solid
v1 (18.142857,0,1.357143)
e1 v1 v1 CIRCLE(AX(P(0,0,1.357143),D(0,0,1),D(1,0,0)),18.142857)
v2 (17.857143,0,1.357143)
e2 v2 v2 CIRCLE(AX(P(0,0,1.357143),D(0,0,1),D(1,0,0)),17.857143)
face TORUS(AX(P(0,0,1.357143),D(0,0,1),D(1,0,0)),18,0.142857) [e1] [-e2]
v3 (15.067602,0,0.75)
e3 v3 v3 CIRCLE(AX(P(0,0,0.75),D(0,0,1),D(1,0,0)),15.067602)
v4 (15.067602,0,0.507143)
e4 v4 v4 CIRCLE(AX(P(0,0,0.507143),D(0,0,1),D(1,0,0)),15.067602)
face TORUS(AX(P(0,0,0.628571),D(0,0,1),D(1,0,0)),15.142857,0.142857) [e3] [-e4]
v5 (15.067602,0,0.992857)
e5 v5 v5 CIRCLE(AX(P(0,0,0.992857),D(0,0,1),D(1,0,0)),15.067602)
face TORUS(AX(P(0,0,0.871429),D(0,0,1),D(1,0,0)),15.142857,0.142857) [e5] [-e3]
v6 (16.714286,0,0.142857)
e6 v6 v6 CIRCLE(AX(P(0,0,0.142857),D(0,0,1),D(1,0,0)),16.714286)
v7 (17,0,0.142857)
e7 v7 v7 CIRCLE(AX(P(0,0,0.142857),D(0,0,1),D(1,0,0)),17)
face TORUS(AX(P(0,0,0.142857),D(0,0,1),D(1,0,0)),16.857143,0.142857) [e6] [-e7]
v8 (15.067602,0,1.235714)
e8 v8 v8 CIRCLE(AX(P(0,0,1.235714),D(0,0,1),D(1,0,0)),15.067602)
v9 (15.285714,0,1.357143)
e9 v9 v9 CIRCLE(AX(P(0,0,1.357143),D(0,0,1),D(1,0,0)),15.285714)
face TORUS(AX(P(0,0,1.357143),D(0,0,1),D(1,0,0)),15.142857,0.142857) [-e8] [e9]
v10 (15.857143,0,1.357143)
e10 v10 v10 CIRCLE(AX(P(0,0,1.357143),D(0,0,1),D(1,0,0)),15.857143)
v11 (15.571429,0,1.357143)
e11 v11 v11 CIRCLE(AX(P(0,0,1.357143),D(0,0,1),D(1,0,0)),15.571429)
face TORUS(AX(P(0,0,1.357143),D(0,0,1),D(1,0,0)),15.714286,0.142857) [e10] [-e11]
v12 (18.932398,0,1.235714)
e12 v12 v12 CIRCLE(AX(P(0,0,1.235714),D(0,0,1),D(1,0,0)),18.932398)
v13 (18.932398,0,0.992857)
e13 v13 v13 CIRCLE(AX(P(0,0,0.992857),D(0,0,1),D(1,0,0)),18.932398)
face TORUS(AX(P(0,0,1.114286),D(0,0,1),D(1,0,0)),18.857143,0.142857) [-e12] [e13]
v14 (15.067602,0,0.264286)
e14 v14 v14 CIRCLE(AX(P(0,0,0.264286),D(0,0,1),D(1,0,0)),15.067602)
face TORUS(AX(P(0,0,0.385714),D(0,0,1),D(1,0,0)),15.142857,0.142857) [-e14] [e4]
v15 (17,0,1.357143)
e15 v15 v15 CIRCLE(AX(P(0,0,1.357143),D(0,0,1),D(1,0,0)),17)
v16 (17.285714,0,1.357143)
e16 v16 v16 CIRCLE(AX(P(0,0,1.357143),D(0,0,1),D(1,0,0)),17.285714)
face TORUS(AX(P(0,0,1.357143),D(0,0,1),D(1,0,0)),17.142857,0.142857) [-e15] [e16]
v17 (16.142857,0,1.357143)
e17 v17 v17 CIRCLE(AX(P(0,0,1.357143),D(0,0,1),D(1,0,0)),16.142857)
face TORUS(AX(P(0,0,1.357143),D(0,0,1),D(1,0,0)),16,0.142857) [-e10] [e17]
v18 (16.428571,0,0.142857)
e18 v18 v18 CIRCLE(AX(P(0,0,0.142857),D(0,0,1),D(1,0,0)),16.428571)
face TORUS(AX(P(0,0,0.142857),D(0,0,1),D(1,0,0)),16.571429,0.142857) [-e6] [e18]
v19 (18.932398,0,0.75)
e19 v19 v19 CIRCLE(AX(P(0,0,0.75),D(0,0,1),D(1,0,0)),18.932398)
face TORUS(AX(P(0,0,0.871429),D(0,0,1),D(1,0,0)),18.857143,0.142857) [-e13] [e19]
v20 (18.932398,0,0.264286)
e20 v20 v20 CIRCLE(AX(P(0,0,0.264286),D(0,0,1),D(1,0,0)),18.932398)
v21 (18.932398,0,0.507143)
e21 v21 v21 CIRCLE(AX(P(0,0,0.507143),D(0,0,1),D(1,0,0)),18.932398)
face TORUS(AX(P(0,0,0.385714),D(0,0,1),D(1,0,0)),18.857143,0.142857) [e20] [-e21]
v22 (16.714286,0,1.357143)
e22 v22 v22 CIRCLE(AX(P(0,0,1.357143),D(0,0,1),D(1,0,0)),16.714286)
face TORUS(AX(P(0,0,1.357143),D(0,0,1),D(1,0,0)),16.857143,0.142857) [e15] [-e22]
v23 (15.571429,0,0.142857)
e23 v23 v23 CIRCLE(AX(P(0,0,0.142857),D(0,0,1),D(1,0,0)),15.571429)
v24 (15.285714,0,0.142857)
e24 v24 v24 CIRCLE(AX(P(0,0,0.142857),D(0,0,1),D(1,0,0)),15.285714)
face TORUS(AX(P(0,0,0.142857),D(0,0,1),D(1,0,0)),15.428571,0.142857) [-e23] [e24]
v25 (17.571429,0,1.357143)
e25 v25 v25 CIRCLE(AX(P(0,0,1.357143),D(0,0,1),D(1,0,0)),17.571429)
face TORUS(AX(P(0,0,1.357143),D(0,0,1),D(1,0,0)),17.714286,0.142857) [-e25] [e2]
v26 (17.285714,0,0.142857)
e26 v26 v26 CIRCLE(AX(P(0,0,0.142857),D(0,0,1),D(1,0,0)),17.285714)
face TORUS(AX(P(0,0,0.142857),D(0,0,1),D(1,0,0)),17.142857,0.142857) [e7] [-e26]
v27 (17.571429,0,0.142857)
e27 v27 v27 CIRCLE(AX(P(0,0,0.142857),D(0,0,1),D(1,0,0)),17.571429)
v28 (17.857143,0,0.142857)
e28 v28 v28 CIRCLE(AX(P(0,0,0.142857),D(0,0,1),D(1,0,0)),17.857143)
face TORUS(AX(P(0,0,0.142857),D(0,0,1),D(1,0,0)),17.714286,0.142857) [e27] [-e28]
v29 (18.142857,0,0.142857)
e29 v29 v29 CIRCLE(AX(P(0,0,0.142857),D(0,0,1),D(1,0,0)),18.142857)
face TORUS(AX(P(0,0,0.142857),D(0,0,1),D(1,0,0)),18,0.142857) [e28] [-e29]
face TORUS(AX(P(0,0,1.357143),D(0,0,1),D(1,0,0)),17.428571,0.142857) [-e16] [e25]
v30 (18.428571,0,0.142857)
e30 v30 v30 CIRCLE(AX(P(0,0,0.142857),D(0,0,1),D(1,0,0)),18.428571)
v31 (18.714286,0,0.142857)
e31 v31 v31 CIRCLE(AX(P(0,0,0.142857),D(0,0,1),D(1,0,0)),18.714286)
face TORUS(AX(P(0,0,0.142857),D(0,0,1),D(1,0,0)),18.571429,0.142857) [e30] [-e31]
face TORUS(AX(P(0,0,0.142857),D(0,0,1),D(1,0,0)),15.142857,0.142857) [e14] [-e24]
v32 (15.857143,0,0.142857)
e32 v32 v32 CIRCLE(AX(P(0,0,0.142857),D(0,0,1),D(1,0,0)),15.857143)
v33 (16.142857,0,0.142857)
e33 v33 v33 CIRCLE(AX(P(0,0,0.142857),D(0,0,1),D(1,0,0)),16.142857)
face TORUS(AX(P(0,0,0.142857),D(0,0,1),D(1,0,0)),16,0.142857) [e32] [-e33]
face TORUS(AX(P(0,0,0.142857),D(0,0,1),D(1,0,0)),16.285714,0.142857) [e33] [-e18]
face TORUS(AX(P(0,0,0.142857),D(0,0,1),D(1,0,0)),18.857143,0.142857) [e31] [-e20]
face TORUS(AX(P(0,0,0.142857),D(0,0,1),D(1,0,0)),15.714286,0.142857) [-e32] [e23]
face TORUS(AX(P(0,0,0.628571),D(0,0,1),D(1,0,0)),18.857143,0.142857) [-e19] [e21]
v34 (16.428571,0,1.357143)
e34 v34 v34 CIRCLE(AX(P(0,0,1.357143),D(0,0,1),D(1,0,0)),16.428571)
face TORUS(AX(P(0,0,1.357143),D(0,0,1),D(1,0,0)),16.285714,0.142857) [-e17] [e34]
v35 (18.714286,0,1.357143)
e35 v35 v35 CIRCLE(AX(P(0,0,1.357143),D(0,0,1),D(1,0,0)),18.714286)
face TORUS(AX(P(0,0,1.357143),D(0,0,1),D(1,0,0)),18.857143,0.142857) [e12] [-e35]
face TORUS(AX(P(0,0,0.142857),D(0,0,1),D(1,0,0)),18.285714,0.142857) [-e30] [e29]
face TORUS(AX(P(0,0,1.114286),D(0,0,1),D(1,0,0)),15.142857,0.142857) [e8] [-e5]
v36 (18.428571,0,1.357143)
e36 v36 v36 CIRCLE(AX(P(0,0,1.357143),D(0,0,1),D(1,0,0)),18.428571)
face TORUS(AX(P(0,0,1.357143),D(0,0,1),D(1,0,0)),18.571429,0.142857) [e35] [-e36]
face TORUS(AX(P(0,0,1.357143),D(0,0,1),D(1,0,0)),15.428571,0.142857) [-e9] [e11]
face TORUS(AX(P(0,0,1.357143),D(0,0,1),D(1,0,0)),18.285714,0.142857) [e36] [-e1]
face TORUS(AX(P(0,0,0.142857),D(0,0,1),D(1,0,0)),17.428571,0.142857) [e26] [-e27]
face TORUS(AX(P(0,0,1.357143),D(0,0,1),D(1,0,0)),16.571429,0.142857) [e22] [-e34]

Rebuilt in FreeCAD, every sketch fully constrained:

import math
import FreeCAD as App
import Part
import Sketcher
Q = App.Units.Quantity

doc = App.newDocument("Part")
params = doc.addObject("Spreadsheet::Sheet", "Params")
for row, (alias, value) in enumerate([
    ("revolution_angle", "360 deg"),
], start=1):
    params.set(f"A{row}", alias)
    params.set(f"B{row}", "=" + value)
    params.setAlias(f"B{row}", alias)

body = doc.addObject("PartDesign::Body", "Body")

sketch1 = body.newObject("Sketcher::SketchObject", "Sketch")
sketch1.AttachmentSupport = (doc.getObject("XZ_Plane"), [""])
sketch1.MapMode = "FlatFace"
sketch1.addGeometry(Part.ArcOfCircle(Part.Circle(App.Vector(-18.86, 1.36, 0), App.Vector(0, 0, 1), 0.14), math.radians(0), math.radians(238)), False)
sketch1.addGeometry(Part.ArcOfCircle(Part.Circle(App.Vector(-18.57, 1.36, 0), App.Vector(0, 0, 1), 0.14), math.radians(0), math.radians(180)), False)
sketch1.addGeometry(Part.ArcOfCircle(Part.Circle(App.Vector(-18.29, 1.36, 0), App.Vector(0, 0, 1), 0.14), math.radians(0), math.radians(180)), False)
sketch1.addGeometry(Part.ArcOfCircle(Part.Circle(App.Vector(-18, 1.36, 0), App.Vector(0, 0, 1), 0.14), math.radians(0), math.radians(180)), False)
sketch1.addGeometry(Part.ArcOfCircle(Part.Circle(App.Vector(-17.71, 1.36, 0), App.Vector(0, 0, 1), 0.14), math.radians(0), math.radians(180)), False)
sketch1.addGeometry(Part.ArcOfCircle(Part.Circle(App.Vector(-17.43, 1.36, 0), App.Vector(0, 0, 1), 0.14), math.radians(0), math.radians(180)), False)
sketch1.addGeometry(Part.ArcOfCircle(Part.Circle(App.Vector(-17.14, 1.36, 0), App.Vector(0, 0, 1), 0.14), math.radians(0), math.radians(180)), False)
sketch1.addGeometry(Part.ArcOfCircle(Part.Circle(App.Vector(-16.86, 1.36, 0), App.Vector(0, 0, 1), 0.14), math.radians(0), math.radians(180)), False)
sketch1.addGeometry(Part.ArcOfCircle(Part.Circle(App.Vector(-16.57, 1.36, 0), App.Vector(0, 0, 1), 0.14), math.radians(0), math.radians(180)), False)
sketch1.addGeometry(Part.ArcOfCircle(Part.Circle(App.Vector(-16.29, 1.36, 0), App.Vector(0, 0, 1), 0.14), math.radians(0), math.radians(180)), False)
sketch1.addGeometry(Part.ArcOfCircle(Part.Circle(App.Vector(-16, 1.36, 0), App.Vector(0, 0, 1), 0.14), math.radians(0), math.radians(180)), False)
sketch1.addGeometry(Part.ArcOfCircle(Part.Circle(App.Vector(-15.71, 1.36, 0), App.Vector(0, 0, 1), 0.14), math.radians(0), math.radians(180)), False)
sketch1.addGeometry(Part.ArcOfCircle(Part.Circle(App.Vector(-15.43, 1.36, 0), App.Vector(0, 0, 1), 0.14), math.radians(0), math.radians(180)), False)
sketch1.addGeometry(Part.ArcOfCircle(Part.Circle(App.Vector(-15.14, 1.36, 0), App.Vector(0, 0, 1), 0.14), math.radians(-58), math.radians(180)), False)
sketch1.addGeometry(Part.ArcOfCircle(Part.Circle(App.Vector(-15.14, 1.11, 0), App.Vector(0, 0, 1), 0.14), math.radians(-58), math.radians(58)), False)
sketch1.addGeometry(Part.ArcOfCircle(Part.Circle(App.Vector(-15.14, 0.87, 0), App.Vector(0, 0, 1), 0.14), math.radians(-58), math.radians(58)), False)
sketch1.addGeometry(Part.ArcOfCircle(Part.Circle(App.Vector(-15.14, 0.63, 0), App.Vector(0, 0, 1), 0.14), math.radians(-58), math.radians(58)), False)
sketch1.addGeometry(Part.ArcOfCircle(Part.Circle(App.Vector(-15.14, 0.39, 0), App.Vector(0, 0, 1), 0.14), math.radians(-58), math.radians(58)), False)
sketch1.addGeometry(Part.ArcOfCircle(Part.Circle(App.Vector(-15.14, 0.14, 0), App.Vector(0, 0, 1), 0.14), math.radians(180), math.radians(418)), False)
sketch1.addGeometry(Part.ArcOfCircle(Part.Circle(App.Vector(-15.43, 0.14, 0), App.Vector(0, 0, 1), 0.14), math.radians(180), math.radians(360)), False)
sketch1.addGeometry(Part.ArcOfCircle(Part.Circle(App.Vector(-15.71, 0.14, 0), App.Vector(0, 0, 1), 0.14), math.radians(180), math.radians(360)), False)
sketch1.addGeometry(Part.ArcOfCircle(Part.Circle(App.Vector(-16, 0.14, 0), App.Vector(0, 0, 1), 0.14), math.radians(180), math.radians(360)), False)
sketch1.addGeometry(Part.ArcOfCircle(Part.Circle(App.Vector(-16.29, 0.14, 0), App.Vector(0, 0, 1), 0.14), math.radians(180), math.radians(360)), False)
sketch1.addGeometry(Part.ArcOfCircle(Part.Circle(App.Vector(-16.57, 0.14, 0), App.Vector(0, 0, 1), 0.14), math.radians(180), math.radians(360)), False)
sketch1.addGeometry(Part.ArcOfCircle(Part.Circle(App.Vector(-16.86, 0.14, 0), App.Vector(0, 0, 1), 0.14), math.radians(180), math.radians(360)), False)
sketch1.addGeometry(Part.ArcOfCircle(Part.Circle(App.Vector(-17.14, 0.14, 0), App.Vector(0, 0, 1), 0.14), math.radians(180), math.radians(360)), False)
sketch1.addGeometry(Part.ArcOfCircle(Part.Circle(App.Vector(-17.43, 0.14, 0), App.Vector(0, 0, 1), 0.14), math.radians(180), math.radians(360)), False)
sketch1.addGeometry(Part.ArcOfCircle(Part.Circle(App.Vector(-17.71, 0.14, 0), App.Vector(0, 0, 1), 0.14), math.radians(180), math.radians(360)), False)
sketch1.addGeometry(Part.ArcOfCircle(Part.Circle(App.Vector(-18, 0.14, 0), App.Vector(0, 0, 1), 0.14), math.radians(180), math.radians(360)), False)
sketch1.addGeometry(Part.ArcOfCircle(Part.Circle(App.Vector(-18.29, 0.14, 0), App.Vector(0, 0, 1), 0.14), math.radians(180), math.radians(360)), False)
sketch1.addGeometry(Part.ArcOfCircle(Part.Circle(App.Vector(-18.57, 0.14, 0), App.Vector(0, 0, 1), 0.14), math.radians(180), math.radians(360)), False)
sketch1.addGeometry(Part.ArcOfCircle(Part.Circle(App.Vector(-18.86, 0.14, 0), App.Vector(0, 0, 1), 0.14), math.radians(122), math.radians(360)), False)
sketch1.addGeometry(Part.ArcOfCircle(Part.Circle(App.Vector(-18.86, 0.39, 0), App.Vector(0, 0, 1), 0.14), math.radians(122), math.radians(238)), False)
sketch1.addGeometry(Part.ArcOfCircle(Part.Circle(App.Vector(-18.86, 0.63, 0), App.Vector(0, 0, 1), 0.14), math.radians(122), math.radians(238)), False)
sketch1.addGeometry(Part.ArcOfCircle(Part.Circle(App.Vector(-18.86, 0.87, 0), App.Vector(0, 0, 1), 0.14), math.radians(122), math.radians(238)), False)
sketch1.addGeometry(Part.ArcOfCircle(Part.Circle(App.Vector(-18.86, 1.11, 0), App.Vector(0, 0, 1), 0.14), math.radians(122), math.radians(238)), False)
sketch1.addConstraint(Sketcher.Constraint("Tangent", 0, 1, 1, 2))
sketch1.addConstraint(Sketcher.Constraint("Tangent", 1, 1, 2, 2))
sketch1.addConstraint(Sketcher.Constraint("Tangent", 2, 1, 3, 2))
sketch1.addConstraint(Sketcher.Constraint("Tangent", 3, 1, 4, 2))
sketch1.addConstraint(Sketcher.Constraint("Tangent", 4, 1, 5, 2))
sketch1.addConstraint(Sketcher.Constraint("Tangent", 5, 1, 6, 2))
sketch1.addConstraint(Sketcher.Constraint("Tangent", 6, 1, 7, 2))
sketch1.addConstraint(Sketcher.Constraint("Tangent", 7, 1, 8, 2))
sketch1.addConstraint(Sketcher.Constraint("Tangent", 8, 1, 9, 2))
sketch1.addConstraint(Sketcher.Constraint("Tangent", 9, 1, 10, 2))
sketch1.addConstraint(Sketcher.Constraint("Tangent", 10, 1, 11, 2))
sketch1.addConstraint(Sketcher.Constraint("Tangent", 11, 1, 12, 2))
sketch1.addConstraint(Sketcher.Constraint("Tangent", 12, 1, 13, 2))
sketch1.addConstraint(Sketcher.Constraint("Coincident", 13, 1, 14, 2))
sketch1.addConstraint(Sketcher.Constraint("Coincident", 14, 1, 15, 2))
sketch1.addConstraint(Sketcher.Constraint("Coincident", 15, 1, 16, 2))
sketch1.addConstraint(Sketcher.Constraint("Coincident", 16, 1, 17, 2))
sketch1.addConstraint(Sketcher.Constraint("Coincident", 17, 1, 18, 2))
sketch1.addConstraint(Sketcher.Constraint("Tangent", 18, 1, 19, 2))
sketch1.addConstraint(Sketcher.Constraint("Tangent", 19, 1, 20, 2))
sketch1.addConstraint(Sketcher.Constraint("Tangent", 20, 1, 21, 2))
sketch1.addConstraint(Sketcher.Constraint("Tangent", 21, 1, 22, 2))
sketch1.addConstraint(Sketcher.Constraint("Tangent", 22, 1, 23, 2))
sketch1.addConstraint(Sketcher.Constraint("Tangent", 23, 1, 24, 2))
sketch1.addConstraint(Sketcher.Constraint("Tangent", 24, 1, 25, 2))
sketch1.addConstraint(Sketcher.Constraint("Tangent", 25, 1, 26, 2))
sketch1.addConstraint(Sketcher.Constraint("Tangent", 26, 1, 27, 2))
sketch1.addConstraint(Sketcher.Constraint("Tangent", 27, 1, 28, 2))
sketch1.addConstraint(Sketcher.Constraint("Tangent", 28, 1, 29, 2))
sketch1.addConstraint(Sketcher.Constraint("Tangent", 29, 1, 30, 2))
sketch1.addConstraint(Sketcher.Constraint("Tangent", 30, 1, 31, 2))
sketch1.addConstraint(Sketcher.Constraint("Coincident", 31, 1, 32, 2))
sketch1.addConstraint(Sketcher.Constraint("Coincident", 32, 1, 33, 2))
sketch1.addConstraint(Sketcher.Constraint("Coincident", 33, 1, 34, 2))
sketch1.addConstraint(Sketcher.Constraint("Coincident", 34, 1, 35, 2))
sketch1.addConstraint(Sketcher.Constraint("Coincident", 35, 1, 0, 2))
sketch1.addConstraint(Sketcher.Constraint("Equal", 0, 1))
sketch1.addConstraint(Sketcher.Constraint("Equal", 1, 2))
sketch1.addConstraint(Sketcher.Constraint("Equal", 2, 3))
sketch1.addConstraint(Sketcher.Constraint("Equal", 3, 4))
sketch1.addConstraint(Sketcher.Constraint("Equal", 4, 5))
sketch1.addConstraint(Sketcher.Constraint("Equal", 5, 6))
sketch1.addConstraint(Sketcher.Constraint("Equal", 6, 7))
sketch1.addConstraint(Sketcher.Constraint("Equal", 7, 8))
sketch1.addConstraint(Sketcher.Constraint("Equal", 8, 9))
sketch1.addConstraint(Sketcher.Constraint("Equal", 9, 10))
sketch1.addConstraint(Sketcher.Constraint("Equal", 10, 11))
sketch1.addConstraint(Sketcher.Constraint("Equal", 11, 12))
sketch1.addConstraint(Sketcher.Constraint("Equal", 12, 13))
sketch1.addConstraint(Sketcher.Constraint("Equal", 13, 14))
sketch1.addConstraint(Sketcher.Constraint("Equal", 14, 15))
sketch1.addConstraint(Sketcher.Constraint("Equal", 15, 16))
sketch1.addConstraint(Sketcher.Constraint("Equal", 16, 17))
sketch1.addConstraint(Sketcher.Constraint("Equal", 17, 18))
sketch1.addConstraint(Sketcher.Constraint("Equal", 18, 19))
sketch1.addConstraint(Sketcher.Constraint("Equal", 19, 20))
sketch1.addConstraint(Sketcher.Constraint("Equal", 20, 21))
sketch1.addConstraint(Sketcher.Constraint("Equal", 21, 22))
sketch1.addConstraint(Sketcher.Constraint("Equal", 22, 23))
sketch1.addConstraint(Sketcher.Constraint("Equal", 23, 24))
sketch1.addConstraint(Sketcher.Constraint("Equal", 24, 25))
sketch1.addConstraint(Sketcher.Constraint("Equal", 25, 26))
sketch1.addConstraint(Sketcher.Constraint("Equal", 26, 27))
sketch1.addConstraint(Sketcher.Constraint("Equal", 27, 28))
sketch1.addConstraint(Sketcher.Constraint("Equal", 28, 29))
sketch1.addConstraint(Sketcher.Constraint("Equal", 29, 30))
sketch1.addConstraint(Sketcher.Constraint("Equal", 30, 31))
sketch1.addConstraint(Sketcher.Constraint("Equal", 31, 32))
sketch1.addConstraint(Sketcher.Constraint("Equal", 32, 33))
sketch1.addConstraint(Sketcher.Constraint("Equal", 33, 34))
sketch1.addConstraint(Sketcher.Constraint("Equal", 34, 35))
sketch1.addConstraint(Sketcher.Constraint("Horizontal", 0, 3, 1, 3))
sketch1.addConstraint(Sketcher.Constraint("Horizontal", 1, 3, 2, 3))
sketch1.addConstraint(Sketcher.Constraint("Horizontal", 2, 3, 3, 3))
sketch1.addConstraint(Sketcher.Constraint("Horizontal", 3, 3, 4, 3))
sketch1.addConstraint(Sketcher.Constraint("Horizontal", 4, 3, 5, 3))
sketch1.addConstraint(Sketcher.Constraint("Horizontal", 5, 3, 6, 3))
sketch1.addConstraint(Sketcher.Constraint("Horizontal", 6, 3, 7, 3))
sketch1.addConstraint(Sketcher.Constraint("Horizontal", 7, 3, 8, 3))
sketch1.addConstraint(Sketcher.Constraint("Horizontal", 8, 3, 9, 3))
sketch1.addConstraint(Sketcher.Constraint("Horizontal", 9, 3, 10, 3))
sketch1.addConstraint(Sketcher.Constraint("Horizontal", 10, 3, 11, 3))
sketch1.addConstraint(Sketcher.Constraint("Horizontal", 11, 3, 12, 3))
sketch1.addConstraint(Sketcher.Constraint("Horizontal", 12, 3, 13, 3))
sketch1.addConstraint(Sketcher.Constraint("Horizontal", 18, 3, 19, 3))
sketch1.addConstraint(Sketcher.Constraint("Horizontal", 19, 3, 20, 3))
sketch1.addConstraint(Sketcher.Constraint("Horizontal", 20, 3, 21, 3))
sketch1.addConstraint(Sketcher.Constraint("Horizontal", 21, 3, 22, 3))
sketch1.addConstraint(Sketcher.Constraint("Horizontal", 22, 3, 23, 3))
sketch1.addConstraint(Sketcher.Constraint("Horizontal", 23, 3, 24, 3))
sketch1.addConstraint(Sketcher.Constraint("Horizontal", 24, 3, 25, 3))
sketch1.addConstraint(Sketcher.Constraint("Horizontal", 25, 3, 26, 3))
sketch1.addConstraint(Sketcher.Constraint("Horizontal", 26, 3, 27, 3))
sketch1.addConstraint(Sketcher.Constraint("Horizontal", 27, 3, 28, 3))
sketch1.addConstraint(Sketcher.Constraint("Horizontal", 28, 3, 29, 3))
sketch1.addConstraint(Sketcher.Constraint("Horizontal", 29, 3, 30, 3))
sketch1.addConstraint(Sketcher.Constraint("Horizontal", 30, 3, 31, 3))
sketch1.addConstraint(Sketcher.Constraint("Horizontal", 17, 3, 32, 3))
sketch1.addConstraint(Sketcher.Constraint("Horizontal", 16, 3, 33, 3))
sketch1.addConstraint(Sketcher.Constraint("Horizontal", 15, 3, 34, 3))
sketch1.addConstraint(Sketcher.Constraint("Horizontal", 14, 3, 35, 3))
sketch1.addConstraint(Sketcher.Constraint("Horizontal", 17, 1, 31, 1))
sketch1.addConstraint(Sketcher.Constraint("Horizontal", 16, 1, 32, 1))
sketch1.addConstraint(Sketcher.Constraint("Horizontal", 15, 1, 33, 1))
sketch1.addConstraint(Sketcher.Constraint("Horizontal", 14, 1, 34, 1))
sketch1.addConstraint(Sketcher.Constraint("Horizontal", 13, 1, 35, 1))
sketch1.addConstraint(Sketcher.Constraint("Vertical", 13, 3, 14, 3))
sketch1.addConstraint(Sketcher.Constraint("Vertical", 14, 3, 15, 3))
sketch1.addConstraint(Sketcher.Constraint("Vertical", 15, 3, 16, 3))
sketch1.addConstraint(Sketcher.Constraint("Vertical", 16, 3, 17, 3))
sketch1.addConstraint(Sketcher.Constraint("Vertical", 13, 1, 14, 1))
sketch1.addConstraint(Sketcher.Constraint("Vertical", 14, 1, 15, 1))
sketch1.addConstraint(Sketcher.Constraint("Vertical", 15, 1, 16, 1))
sketch1.addConstraint(Sketcher.Constraint("Vertical", 16, 1, 17, 1))
sketch1.addConstraint(Sketcher.Constraint("DistanceX", 3, 3, -1, 1, Q("18 mm")))
sketch1.addConstraint(Sketcher.Constraint("DistanceX", 10, 3, -1, 1, Q("16 mm")))
sketch1.addConstraint(Sketcher.Constraint("DistanceY", -1, 1, 15, 1, Q("0.75 mm")))
sketch1.addConstraint(Sketcher.Constraint("DistanceY", -1, 1, 15, 3, Q("0.871429 mm")))
revolution = body.newObject("PartDesign::Revolution", "Revolution")
revolution.Profile = sketch1
revolution.ReferenceAxis = (sketch1, ["V_Axis"])
revolution.setExpression("Angle", "Params.revolution_angle")

doc.recompute()
